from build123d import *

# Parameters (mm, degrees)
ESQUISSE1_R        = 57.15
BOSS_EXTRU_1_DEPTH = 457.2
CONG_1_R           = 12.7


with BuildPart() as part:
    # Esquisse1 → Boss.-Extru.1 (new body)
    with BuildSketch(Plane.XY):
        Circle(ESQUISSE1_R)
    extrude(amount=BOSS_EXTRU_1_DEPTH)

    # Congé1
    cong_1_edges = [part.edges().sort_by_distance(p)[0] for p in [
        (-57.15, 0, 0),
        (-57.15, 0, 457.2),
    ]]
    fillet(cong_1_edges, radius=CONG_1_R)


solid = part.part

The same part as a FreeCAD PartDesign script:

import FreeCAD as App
import Part
import Sketcher
from FreeCAD import Vector
Q = App.Units.Quantity


def edges_at(feature, points):
    """Names of the edges that pass closest to the given points."""
    edges = feature.Shape.Edges
    near = lambda p: min(range(len(edges)), key=lambda i: edges[i].distToShape(Part.Vertex(*p))[0])
    return sorted({f"Edge{near(p) + 1}" for p in points})

doc = App.newDocument("Part")
body = doc.addObject("PartDesign::Body", "Body")

# Sketch on XY plane
sketch1 = doc.addObject("Sketcher::SketchObject", "Sketch")
body.addObject(sketch1)
sketch1.AttachmentSupport = (doc.XY_Plane, [""])
sketch1.MapMode = "FlatFace"
sketch1.addGeometry(Part.Circle(Vector(0, 0, 0), Vector(0, 0, 1), 57), False)
sketch1.addConstraint([
    Sketcher.Constraint("Coincident", 0, 3, -1, 1),
    Sketcher.Constraint("Diameter", 0, Q("4.5 in")),
])
pad1 = doc.addObject("PartDesign::Pad", "Pad")
body.addObject(pad1)
pad1.Profile = sketch1
pad1.Length = Q("18 in")
doc.recompute()

fillet = doc.addObject("PartDesign::Fillet", "Fillet")
body.addObject(fillet)
fillet.Base = (pad1, edges_at(pad1, [(-57.15, 0, 0), (-57.15, 0, 457.2)]))
fillet.Radius = Q("0.5 in")

doc.recompute()
